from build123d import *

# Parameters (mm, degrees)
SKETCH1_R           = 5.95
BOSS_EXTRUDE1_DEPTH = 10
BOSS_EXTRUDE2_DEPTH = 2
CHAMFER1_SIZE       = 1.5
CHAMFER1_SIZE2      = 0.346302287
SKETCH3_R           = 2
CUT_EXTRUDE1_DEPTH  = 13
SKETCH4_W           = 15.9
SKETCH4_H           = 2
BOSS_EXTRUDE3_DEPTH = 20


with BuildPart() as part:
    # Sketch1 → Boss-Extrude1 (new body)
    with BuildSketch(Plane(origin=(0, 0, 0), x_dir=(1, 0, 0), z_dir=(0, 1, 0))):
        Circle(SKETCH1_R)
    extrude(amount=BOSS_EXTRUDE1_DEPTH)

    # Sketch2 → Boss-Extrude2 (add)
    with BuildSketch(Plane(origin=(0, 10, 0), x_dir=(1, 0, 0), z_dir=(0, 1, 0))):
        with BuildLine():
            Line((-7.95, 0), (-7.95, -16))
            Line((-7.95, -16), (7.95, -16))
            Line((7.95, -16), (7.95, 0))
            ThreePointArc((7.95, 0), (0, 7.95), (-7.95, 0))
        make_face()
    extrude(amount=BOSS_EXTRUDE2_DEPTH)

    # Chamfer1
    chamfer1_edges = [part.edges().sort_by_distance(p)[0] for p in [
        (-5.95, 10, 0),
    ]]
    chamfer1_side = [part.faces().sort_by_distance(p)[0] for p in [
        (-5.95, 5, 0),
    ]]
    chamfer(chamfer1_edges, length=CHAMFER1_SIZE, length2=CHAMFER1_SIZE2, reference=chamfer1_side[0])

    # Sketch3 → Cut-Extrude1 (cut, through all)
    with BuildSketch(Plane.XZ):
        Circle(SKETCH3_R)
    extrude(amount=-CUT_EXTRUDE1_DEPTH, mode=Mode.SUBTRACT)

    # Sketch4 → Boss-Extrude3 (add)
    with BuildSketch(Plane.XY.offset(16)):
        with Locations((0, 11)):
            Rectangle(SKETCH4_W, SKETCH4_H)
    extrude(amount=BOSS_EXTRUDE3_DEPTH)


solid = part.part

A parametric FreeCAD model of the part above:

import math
import FreeCAD as App
import Part
import Sketcher

V = App.Vector


def edges_at(feature, points):
    """Names of the edges that pass closest to the given points."""
    edges = feature.Shape.Edges
    near = lambda p: min(range(len(edges)), key=lambda i: edges[i].distToShape(Part.Vertex(*p))[0])
    return sorted({f"Edge{near(p) + 1}" for p in points})


def add_polygon(sketch, points):
    """Adds a closed chain of lines whose ends are joined by coincident constraints."""
    first, n = sketch.GeometryCount, len(points)
    for a, b in zip(points, points[1:] + points[:1]):
        sketch.addGeometry(Part.LineSegment(App.Vector(*a, 0), App.Vector(*b, 0)), False)
    for i in range(n):
        sketch.addConstraint(Sketcher.Constraint("Coincident", first + i, 2, first + (i + 1) % n, 1))

doc = App.newDocument("Part")
body = doc.addObject("PartDesign::Body", "Body")

sketch1 = doc.addObject("Sketcher::SketchObject", "Sketch")
body.addObject(sketch1)
sketch1.AttachmentSupport = (doc.XZ_Plane, [""])
sketch1.MapMode = "FlatFace"
sketch1.addGeometry(Part.Circle(V(0, 0, 0), V(0, 0, 1), 6), False)
sketch1.addConstraint([
    Sketcher.Constraint("Coincident", 0, 3, -1, 1),
    Sketcher.Constraint("Diameter", 0, 11.9),
])
pad1 = doc.addObject("PartDesign::Pad", "Pad")
body.addObject(pad1)
pad1.Profile = sketch1
pad1.Length = 10
pad1.Reversed = True

sketch2 = doc.addObject("Sketcher::SketchObject", "Sketch001")
body.addObject(sketch2)
sketch2.AttachmentSupport = (doc.XZ_Plane, [""])
sketch2.MapMode = "FlatFace"
sketch2.AttachmentOffset = App.Placement(V(0, 0, -10), App.Rotation())
sketch2.addGeometry([
    Part.LineSegment(V(-8, 0, 0), V(-8, 16, 0)),
    Part.LineSegment(V(-8, 16, 0), V(8, 16, 0)),
    Part.LineSegment(V(8, 16, 0), V(8, 0, 0)),
    Part.ArcOfCircle(Part.Circle(V(0, 0, 0), V(0, 0, 1), 8), math.radians(180), math.radians(360)),
], False)
sketch2.addConstraint([
    Sketcher.Constraint("Coincident", 0, 2, 1, 1),
    Sketcher.Constraint("Coincident", 1, 2, 2, 1),
    Sketcher.Constraint("Tangent", 2, 2, 3, 2),
    Sketcher.Constraint("Tangent", 3, 1, 0, 1),
    Sketcher.Constraint("Vertical", 0),
    Sketcher.Constraint("Horizontal", 1),
    Sketcher.Constraint("Vertical", 2),
    Sketcher.Constraint("Coincident", 3, 3, -1, 1),
    Sketcher.Constraint("DistanceY", 0, 1, 0, 2, 16.0),
    Sketcher.Constraint("Radius", 3, 7.95),
])
pad2 = doc.addObject("PartDesign::Pad", "Pad001")
body.addObject(pad2)
pad2.Profile = sketch2
pad2.Length = 2
pad2.Reversed = True
doc.recompute()

chamfer = doc.addObject("PartDesign::Chamfer", "Chamfer")
body.addObject(chamfer)
chamfer.Base = (pad2, edges_at(pad2, [(-5.95, 10, 0)]))
chamfer.ChamferType = "Two distances"
chamfer.Size = 1.5
chamfer.Size2 = 0.346302

sketch3 = doc.addObject("Sketcher::SketchObject", "Sketch002")
body.addObject(sketch3)
sketch3.AttachmentSupport = (doc.XZ_Plane, [""])
sketch3.MapMode = "FlatFace"
sketch3.addGeometry(Part.Circle(V(0, 0, 0), V(0, 0, 1), 2), False)
sketch3.addConstraint([
    Sketcher.Constraint("Coincident", 0, 3, -1, 1),
    Sketcher.Constraint("Diameter", 0, 4.0),
])
pocket1 = doc.addObject("PartDesign::Pocket", "Pocket")
body.addObject(pocket1)
pocket1.Profile = sketch3
pocket1.Type = "ThroughAll"

sketch4 = doc.addObject("Sketcher::SketchObject", "Sketch003")
body.addObject(sketch4)
sketch4.AttachmentSupport = (doc.XY_Plane, [""])
sketch4.MapMode = "FlatFace"
sketch4.AttachmentOffset = App.Placement(V(0, 0, 16), App.Rotation())
add_polygon(sketch4, [(-8, 12), (-8, 10), (8, 10), (8, 12)])
sketch4.addConstraint([
    Sketcher.Constraint("Vertical", 0),
    Sketcher.Constraint("Horizontal", 1),
    Sketcher.Constraint("Vertical", 2),
    Sketcher.Constraint("Horizontal", 3),
    Sketcher.Constraint("DistanceY", 0, 2, 0, 1, 2.0),
    Sketcher.Constraint("DistanceX", 1, 1, 1, 2, 15.9),
    Sketcher.Constraint("DistanceY", -1, 1, 0, 2, 10.0),
    Sketcher.Constraint("DistanceX", 0, 2, -1, 1, 7.95),
])
pad3 = doc.addObject("PartDesign::Pad", "Pad002")
body.addObject(pad3)
pad3.Profile = sketch4
pad3.Length = 20

doc.recompute()
